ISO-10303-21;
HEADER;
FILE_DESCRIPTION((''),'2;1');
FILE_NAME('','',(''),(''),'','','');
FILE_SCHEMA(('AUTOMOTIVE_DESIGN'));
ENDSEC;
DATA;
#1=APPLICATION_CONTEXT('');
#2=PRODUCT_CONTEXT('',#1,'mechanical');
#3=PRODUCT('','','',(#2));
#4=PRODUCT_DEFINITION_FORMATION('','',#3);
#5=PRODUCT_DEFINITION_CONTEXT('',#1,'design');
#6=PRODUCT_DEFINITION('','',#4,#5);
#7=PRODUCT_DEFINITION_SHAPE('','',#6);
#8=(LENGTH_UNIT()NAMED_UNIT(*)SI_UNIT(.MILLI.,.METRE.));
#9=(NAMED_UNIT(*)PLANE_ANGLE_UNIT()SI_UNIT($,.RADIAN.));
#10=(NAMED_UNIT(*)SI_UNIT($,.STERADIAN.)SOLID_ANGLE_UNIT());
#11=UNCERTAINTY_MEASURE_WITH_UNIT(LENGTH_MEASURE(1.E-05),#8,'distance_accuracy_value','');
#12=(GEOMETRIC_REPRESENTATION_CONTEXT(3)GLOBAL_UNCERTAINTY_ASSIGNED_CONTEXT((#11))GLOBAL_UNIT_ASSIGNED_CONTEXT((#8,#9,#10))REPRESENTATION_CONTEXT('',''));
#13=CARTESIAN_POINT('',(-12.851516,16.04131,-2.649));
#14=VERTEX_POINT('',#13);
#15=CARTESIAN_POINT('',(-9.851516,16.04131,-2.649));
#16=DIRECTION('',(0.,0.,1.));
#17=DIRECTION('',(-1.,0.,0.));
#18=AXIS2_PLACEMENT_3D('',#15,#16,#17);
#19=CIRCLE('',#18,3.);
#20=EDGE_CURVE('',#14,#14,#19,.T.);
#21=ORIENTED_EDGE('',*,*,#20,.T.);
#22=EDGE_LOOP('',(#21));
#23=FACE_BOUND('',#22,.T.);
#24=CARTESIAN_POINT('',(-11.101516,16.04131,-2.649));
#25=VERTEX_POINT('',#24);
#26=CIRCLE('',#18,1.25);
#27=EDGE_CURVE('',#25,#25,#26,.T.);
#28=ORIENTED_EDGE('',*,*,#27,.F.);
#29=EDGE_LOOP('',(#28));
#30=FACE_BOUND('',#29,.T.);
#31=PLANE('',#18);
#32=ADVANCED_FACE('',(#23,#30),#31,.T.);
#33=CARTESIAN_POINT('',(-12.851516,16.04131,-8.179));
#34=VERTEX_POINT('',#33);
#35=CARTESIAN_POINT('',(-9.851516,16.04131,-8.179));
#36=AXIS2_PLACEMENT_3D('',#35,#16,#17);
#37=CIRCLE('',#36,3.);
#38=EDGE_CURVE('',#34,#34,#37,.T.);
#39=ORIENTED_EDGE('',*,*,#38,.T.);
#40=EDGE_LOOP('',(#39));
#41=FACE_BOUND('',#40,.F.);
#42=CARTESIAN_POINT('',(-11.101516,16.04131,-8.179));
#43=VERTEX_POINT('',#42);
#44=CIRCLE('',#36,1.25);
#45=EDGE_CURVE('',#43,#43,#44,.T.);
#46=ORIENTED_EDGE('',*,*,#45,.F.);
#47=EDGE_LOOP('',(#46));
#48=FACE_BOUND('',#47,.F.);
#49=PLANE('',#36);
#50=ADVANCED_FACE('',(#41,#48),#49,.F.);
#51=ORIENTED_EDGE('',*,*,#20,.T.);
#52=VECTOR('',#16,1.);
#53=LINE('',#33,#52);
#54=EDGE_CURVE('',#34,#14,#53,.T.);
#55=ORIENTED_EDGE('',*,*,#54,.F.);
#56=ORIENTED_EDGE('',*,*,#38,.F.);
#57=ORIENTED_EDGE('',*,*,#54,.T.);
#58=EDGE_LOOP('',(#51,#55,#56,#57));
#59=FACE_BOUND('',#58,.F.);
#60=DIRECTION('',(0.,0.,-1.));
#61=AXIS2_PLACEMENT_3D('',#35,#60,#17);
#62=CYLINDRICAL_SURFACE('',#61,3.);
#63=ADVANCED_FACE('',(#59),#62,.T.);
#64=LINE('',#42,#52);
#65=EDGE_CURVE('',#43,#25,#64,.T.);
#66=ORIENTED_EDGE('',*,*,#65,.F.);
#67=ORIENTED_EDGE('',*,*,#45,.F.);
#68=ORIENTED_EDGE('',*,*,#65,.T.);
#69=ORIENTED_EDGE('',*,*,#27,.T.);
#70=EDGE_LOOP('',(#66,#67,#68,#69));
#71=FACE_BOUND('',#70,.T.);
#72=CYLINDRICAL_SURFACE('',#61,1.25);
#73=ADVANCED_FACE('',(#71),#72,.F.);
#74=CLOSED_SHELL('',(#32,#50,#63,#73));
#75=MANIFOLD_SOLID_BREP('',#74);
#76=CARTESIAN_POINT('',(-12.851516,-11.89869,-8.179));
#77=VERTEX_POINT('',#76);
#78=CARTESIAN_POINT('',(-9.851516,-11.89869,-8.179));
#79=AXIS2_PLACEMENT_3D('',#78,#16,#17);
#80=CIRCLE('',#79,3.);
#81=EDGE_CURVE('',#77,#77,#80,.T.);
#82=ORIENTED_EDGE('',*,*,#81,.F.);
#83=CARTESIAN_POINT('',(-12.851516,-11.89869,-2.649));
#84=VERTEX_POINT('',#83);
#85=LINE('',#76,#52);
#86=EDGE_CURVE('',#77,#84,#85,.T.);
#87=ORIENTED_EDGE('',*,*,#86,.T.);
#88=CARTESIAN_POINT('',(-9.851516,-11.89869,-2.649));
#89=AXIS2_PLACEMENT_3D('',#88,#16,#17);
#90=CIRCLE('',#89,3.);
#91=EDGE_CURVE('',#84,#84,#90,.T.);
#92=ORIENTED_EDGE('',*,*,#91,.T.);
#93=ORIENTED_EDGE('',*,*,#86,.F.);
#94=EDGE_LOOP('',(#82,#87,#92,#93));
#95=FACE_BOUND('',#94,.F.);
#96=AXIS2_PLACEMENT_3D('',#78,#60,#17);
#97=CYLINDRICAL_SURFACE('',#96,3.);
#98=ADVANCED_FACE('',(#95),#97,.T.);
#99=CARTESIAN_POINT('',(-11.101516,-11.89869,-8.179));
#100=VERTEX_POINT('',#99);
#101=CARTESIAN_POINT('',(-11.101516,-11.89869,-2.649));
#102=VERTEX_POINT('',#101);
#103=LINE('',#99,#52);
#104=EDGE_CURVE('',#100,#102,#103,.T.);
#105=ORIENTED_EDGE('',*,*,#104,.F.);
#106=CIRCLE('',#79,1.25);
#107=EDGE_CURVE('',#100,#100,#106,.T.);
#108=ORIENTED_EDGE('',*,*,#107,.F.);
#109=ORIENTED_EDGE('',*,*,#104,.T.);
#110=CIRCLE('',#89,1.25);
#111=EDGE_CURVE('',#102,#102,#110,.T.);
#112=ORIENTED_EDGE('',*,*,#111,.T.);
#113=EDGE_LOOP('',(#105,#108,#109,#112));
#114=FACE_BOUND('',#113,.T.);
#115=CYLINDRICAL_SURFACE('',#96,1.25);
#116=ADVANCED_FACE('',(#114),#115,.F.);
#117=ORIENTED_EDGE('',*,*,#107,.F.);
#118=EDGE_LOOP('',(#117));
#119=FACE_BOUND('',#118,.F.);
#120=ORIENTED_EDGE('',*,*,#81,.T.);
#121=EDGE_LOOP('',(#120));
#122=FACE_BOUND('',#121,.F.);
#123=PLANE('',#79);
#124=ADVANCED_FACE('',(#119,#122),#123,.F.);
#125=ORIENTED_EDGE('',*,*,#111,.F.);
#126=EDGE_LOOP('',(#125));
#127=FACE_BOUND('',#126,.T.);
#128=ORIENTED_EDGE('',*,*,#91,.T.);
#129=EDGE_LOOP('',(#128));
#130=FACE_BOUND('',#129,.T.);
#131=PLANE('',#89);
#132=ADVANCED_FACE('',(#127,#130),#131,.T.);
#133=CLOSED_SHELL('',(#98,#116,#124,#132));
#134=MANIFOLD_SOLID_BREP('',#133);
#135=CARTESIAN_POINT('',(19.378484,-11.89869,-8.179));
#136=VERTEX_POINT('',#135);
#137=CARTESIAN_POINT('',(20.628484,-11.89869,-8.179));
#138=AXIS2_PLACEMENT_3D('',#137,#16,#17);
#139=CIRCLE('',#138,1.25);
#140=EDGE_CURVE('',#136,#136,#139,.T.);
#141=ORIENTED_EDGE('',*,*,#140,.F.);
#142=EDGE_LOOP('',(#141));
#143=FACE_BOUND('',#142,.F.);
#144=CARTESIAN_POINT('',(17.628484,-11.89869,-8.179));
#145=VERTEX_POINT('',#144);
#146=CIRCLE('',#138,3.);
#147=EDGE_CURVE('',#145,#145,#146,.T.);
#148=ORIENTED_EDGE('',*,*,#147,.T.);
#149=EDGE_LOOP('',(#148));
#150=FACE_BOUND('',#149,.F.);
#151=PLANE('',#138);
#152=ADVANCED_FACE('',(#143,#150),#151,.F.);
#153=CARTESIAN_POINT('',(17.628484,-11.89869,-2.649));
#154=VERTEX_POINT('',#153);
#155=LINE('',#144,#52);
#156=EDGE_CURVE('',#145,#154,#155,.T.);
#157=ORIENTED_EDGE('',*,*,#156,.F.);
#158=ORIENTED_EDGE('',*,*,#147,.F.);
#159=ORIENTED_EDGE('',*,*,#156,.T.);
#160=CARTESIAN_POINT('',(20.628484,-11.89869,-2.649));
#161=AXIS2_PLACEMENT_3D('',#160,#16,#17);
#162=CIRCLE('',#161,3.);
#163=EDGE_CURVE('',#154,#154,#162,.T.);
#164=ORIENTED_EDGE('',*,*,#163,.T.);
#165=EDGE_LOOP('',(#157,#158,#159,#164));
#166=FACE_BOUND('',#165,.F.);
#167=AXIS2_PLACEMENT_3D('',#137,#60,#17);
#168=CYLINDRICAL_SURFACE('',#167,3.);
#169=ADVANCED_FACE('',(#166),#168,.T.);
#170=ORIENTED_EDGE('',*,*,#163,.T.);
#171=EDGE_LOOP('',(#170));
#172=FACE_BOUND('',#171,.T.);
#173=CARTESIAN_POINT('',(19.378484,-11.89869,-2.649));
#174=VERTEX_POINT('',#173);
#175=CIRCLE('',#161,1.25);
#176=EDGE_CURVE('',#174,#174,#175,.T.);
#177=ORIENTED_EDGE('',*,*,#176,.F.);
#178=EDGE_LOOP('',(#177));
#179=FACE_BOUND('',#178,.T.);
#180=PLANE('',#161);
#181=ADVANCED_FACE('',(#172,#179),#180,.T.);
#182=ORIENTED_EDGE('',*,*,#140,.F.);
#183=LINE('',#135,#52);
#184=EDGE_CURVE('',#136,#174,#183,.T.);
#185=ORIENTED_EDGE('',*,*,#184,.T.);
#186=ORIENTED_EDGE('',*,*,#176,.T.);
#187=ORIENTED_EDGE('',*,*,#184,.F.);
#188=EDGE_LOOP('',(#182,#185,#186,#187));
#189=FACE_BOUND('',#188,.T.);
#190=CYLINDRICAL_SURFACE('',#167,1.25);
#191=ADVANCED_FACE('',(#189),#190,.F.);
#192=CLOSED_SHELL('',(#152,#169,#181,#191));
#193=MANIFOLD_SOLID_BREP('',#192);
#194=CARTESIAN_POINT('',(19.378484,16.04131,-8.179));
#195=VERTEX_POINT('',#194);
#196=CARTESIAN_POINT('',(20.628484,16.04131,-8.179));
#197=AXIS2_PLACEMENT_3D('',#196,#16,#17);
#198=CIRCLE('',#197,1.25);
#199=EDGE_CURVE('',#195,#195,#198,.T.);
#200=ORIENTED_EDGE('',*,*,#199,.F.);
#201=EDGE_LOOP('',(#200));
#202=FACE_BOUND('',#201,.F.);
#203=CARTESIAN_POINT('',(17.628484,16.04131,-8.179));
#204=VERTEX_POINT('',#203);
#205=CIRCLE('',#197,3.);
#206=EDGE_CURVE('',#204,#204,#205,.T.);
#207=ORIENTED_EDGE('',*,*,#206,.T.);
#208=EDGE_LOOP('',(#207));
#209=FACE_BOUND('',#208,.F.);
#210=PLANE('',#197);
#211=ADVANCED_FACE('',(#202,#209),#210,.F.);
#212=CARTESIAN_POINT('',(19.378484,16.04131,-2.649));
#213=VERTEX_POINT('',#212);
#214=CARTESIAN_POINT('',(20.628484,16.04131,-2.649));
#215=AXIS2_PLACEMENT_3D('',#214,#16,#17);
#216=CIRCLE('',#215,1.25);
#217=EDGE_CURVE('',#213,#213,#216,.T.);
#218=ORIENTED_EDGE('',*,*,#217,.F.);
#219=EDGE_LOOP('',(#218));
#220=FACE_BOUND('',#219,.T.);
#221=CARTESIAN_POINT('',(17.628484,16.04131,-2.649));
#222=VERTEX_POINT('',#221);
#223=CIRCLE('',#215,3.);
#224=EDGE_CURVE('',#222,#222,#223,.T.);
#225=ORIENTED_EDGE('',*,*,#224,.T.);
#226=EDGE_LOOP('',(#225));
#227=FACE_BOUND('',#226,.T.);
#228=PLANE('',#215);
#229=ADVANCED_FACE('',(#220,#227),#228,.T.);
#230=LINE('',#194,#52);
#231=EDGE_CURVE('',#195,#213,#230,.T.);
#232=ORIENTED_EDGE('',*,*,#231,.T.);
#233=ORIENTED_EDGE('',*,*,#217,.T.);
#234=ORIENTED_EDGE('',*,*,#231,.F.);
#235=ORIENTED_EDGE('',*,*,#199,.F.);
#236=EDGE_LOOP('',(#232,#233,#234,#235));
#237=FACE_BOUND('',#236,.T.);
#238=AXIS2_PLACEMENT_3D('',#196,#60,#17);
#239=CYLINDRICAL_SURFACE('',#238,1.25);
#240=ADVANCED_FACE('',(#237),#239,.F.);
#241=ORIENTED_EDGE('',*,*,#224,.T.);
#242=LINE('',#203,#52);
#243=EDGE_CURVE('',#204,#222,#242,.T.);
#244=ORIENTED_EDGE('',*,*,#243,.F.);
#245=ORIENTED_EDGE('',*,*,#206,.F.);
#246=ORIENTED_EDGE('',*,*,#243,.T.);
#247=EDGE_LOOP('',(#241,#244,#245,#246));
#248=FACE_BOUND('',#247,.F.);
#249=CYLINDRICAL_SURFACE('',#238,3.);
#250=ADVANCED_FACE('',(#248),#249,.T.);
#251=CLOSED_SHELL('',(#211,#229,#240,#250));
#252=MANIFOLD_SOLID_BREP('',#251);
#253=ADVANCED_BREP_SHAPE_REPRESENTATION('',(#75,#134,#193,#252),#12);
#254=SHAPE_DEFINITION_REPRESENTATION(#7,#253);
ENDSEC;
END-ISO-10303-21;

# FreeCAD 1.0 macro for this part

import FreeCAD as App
import Part
import Sketcher
from FreeCAD import Vector
Q = App.Units.Quantity

doc = App.newDocument("Part")
body = doc.addObject("PartDesign::Body", "Body")

sketch1 = body.newObject("Sketcher::SketchObject", "Sketch")
sketch1.AttachmentSupport = (doc.getObject("XY_Plane"), [""])
sketch1.MapMode = "FlatFace"
sketch1.AttachmentOffset = App.Placement(Vector(0, 0, -8.179), App.Rotation())
sketch1.addGeometry([
    Part.Circle(Vector(20.628484, -11.89869, 0), Vector(0, 0, 1), 3),
    Part.Circle(Vector(20.628484, -11.89869, 0), Vector(0, 0, 1), 1.25),
], False)
sketch1.addConstraint([
    Sketcher.Constraint("Coincident", 1, 3, 0, 3),
    Sketcher.Constraint("Diameter", 0, Q("6 mm")),
    Sketcher.Constraint("Diameter", 1, Q("2.5 mm")),
    Sketcher.Constraint("DistanceY", 0, 3, -1, 1, Q("11.89869 mm")),
    Sketcher.Constraint("DistanceX", -1, 1, 0, 3, Q("20.628484 mm")),
])
pad1 = body.newObject("PartDesign::Pad", "Pad")
pad1.Profile = sketch1
pad1.Length = 5.53
body2 = doc.addObject("PartDesign::Body", "Body001")

sketch2 = body2.newObject("Sketcher::SketchObject", "Sketch001")
sketch2.AttachmentSupport = (doc.getObject("XY_Plane001"), [""])
sketch2.MapMode = "FlatFace"
sketch2.AttachmentOffset = App.Placement(Vector(0, 0, -8.179), App.Rotation())
sketch2.addGeometry([
    Part.Circle(Vector(-9.851516, -11.89869, 0), Vector(0, 0, 1), 3),
    Part.Circle(Vector(-9.851516, -11.89869, 0), Vector(0, 0, 1), 1.25),
], False)
sketch2.addConstraint([
    Sketcher.Constraint("Coincident", 1, 3, 0, 3),
    Sketcher.Constraint("Diameter", 0, Q("6 mm")),
    Sketcher.Constraint("Diameter", 1, Q("2.5 mm")),
    Sketcher.Constraint("DistanceY", 0, 3, -1, 1, Q("11.89869 mm")),
    Sketcher.Constraint("DistanceX", 0, 3, -1, 1, Q("9.851516 mm")),
])
pad2 = body2.newObject("PartDesign::Pad", "Pad001")
pad2.Profile = sketch2
pad2.Length = 5.53
body3 = doc.addObject("PartDesign::Body", "Body002")

sketch3 = body3.newObject("Sketcher::SketchObject", "Sketch002")
sketch3.AttachmentSupport = (doc.getObject("XY_Plane002"), [""])
sketch3.MapMode = "FlatFace"
sketch3.AttachmentOffset = App.Placement(Vector(0, 0, -8.179), App.Rotation())
sketch3.addGeometry([
    Part.Circle(Vector(-9.851516, 16.04131, 0), Vector(0, 0, 1), 3),
    Part.Circle(Vector(-9.851516, 16.04131, 0), Vector(0, 0, 1), 1.25),
], False)
sketch3.addConstraint([
    Sketcher.Constraint("Coincident", 1, 3, 0, 3),
    Sketcher.Constraint("Diameter", 0, Q("6 mm")),
    Sketcher.Constraint("Diameter", 1, Q("2.5 mm")),
    Sketcher.Constraint("DistanceY", -1, 1, 0, 3, Q("16.04131 mm")),
    Sketcher.Constraint("DistanceX", 0, 3, -1, 1, Q("9.851516 mm")),
])
pad3 = body3.newObject("PartDesign::Pad", "Pad002")
pad3.Profile = sketch3
pad3.Length = 5.53
body4 = doc.addObject("PartDesign::Body", "Body003")

sketch4 = body4.newObject("Sketcher::SketchObject", "Sketch003")
sketch4.AttachmentSupport = (doc.getObject("XY_Plane003"), [""])
sketch4.MapMode = "FlatFace"
sketch4.AttachmentOffset = App.Placement(Vector(0, 0, -8.179), App.Rotation())
sketch4.addGeometry([
    Part.Circle(Vector(20.628484, 16.04131, 0), Vector(0, 0, 1), 3),
    Part.Circle(Vector(20.628484, 16.04131, 0), Vector(0, 0, 1), 1.25),
], False)
sketch4.addConstraint([
    Sketcher.Constraint("Coincident", 1, 3, 0, 3),
    Sketcher.Constraint("Diameter", 0, Q("6 mm")),
    Sketcher.Constraint("Diameter", 1, Q("2.5 mm")),
    Sketcher.Constraint("DistanceY", -1, 1, 0, 3, Q("16.04131 mm")),
    Sketcher.Constraint("DistanceX", -1, 1, 0, 3, Q("20.628484 mm")),
])
pad4 = body4.newObject("PartDesign::Pad", "Pad003")
pad4.Profile = sketch4
pad4.Length = 5.53

doc.recompute()
